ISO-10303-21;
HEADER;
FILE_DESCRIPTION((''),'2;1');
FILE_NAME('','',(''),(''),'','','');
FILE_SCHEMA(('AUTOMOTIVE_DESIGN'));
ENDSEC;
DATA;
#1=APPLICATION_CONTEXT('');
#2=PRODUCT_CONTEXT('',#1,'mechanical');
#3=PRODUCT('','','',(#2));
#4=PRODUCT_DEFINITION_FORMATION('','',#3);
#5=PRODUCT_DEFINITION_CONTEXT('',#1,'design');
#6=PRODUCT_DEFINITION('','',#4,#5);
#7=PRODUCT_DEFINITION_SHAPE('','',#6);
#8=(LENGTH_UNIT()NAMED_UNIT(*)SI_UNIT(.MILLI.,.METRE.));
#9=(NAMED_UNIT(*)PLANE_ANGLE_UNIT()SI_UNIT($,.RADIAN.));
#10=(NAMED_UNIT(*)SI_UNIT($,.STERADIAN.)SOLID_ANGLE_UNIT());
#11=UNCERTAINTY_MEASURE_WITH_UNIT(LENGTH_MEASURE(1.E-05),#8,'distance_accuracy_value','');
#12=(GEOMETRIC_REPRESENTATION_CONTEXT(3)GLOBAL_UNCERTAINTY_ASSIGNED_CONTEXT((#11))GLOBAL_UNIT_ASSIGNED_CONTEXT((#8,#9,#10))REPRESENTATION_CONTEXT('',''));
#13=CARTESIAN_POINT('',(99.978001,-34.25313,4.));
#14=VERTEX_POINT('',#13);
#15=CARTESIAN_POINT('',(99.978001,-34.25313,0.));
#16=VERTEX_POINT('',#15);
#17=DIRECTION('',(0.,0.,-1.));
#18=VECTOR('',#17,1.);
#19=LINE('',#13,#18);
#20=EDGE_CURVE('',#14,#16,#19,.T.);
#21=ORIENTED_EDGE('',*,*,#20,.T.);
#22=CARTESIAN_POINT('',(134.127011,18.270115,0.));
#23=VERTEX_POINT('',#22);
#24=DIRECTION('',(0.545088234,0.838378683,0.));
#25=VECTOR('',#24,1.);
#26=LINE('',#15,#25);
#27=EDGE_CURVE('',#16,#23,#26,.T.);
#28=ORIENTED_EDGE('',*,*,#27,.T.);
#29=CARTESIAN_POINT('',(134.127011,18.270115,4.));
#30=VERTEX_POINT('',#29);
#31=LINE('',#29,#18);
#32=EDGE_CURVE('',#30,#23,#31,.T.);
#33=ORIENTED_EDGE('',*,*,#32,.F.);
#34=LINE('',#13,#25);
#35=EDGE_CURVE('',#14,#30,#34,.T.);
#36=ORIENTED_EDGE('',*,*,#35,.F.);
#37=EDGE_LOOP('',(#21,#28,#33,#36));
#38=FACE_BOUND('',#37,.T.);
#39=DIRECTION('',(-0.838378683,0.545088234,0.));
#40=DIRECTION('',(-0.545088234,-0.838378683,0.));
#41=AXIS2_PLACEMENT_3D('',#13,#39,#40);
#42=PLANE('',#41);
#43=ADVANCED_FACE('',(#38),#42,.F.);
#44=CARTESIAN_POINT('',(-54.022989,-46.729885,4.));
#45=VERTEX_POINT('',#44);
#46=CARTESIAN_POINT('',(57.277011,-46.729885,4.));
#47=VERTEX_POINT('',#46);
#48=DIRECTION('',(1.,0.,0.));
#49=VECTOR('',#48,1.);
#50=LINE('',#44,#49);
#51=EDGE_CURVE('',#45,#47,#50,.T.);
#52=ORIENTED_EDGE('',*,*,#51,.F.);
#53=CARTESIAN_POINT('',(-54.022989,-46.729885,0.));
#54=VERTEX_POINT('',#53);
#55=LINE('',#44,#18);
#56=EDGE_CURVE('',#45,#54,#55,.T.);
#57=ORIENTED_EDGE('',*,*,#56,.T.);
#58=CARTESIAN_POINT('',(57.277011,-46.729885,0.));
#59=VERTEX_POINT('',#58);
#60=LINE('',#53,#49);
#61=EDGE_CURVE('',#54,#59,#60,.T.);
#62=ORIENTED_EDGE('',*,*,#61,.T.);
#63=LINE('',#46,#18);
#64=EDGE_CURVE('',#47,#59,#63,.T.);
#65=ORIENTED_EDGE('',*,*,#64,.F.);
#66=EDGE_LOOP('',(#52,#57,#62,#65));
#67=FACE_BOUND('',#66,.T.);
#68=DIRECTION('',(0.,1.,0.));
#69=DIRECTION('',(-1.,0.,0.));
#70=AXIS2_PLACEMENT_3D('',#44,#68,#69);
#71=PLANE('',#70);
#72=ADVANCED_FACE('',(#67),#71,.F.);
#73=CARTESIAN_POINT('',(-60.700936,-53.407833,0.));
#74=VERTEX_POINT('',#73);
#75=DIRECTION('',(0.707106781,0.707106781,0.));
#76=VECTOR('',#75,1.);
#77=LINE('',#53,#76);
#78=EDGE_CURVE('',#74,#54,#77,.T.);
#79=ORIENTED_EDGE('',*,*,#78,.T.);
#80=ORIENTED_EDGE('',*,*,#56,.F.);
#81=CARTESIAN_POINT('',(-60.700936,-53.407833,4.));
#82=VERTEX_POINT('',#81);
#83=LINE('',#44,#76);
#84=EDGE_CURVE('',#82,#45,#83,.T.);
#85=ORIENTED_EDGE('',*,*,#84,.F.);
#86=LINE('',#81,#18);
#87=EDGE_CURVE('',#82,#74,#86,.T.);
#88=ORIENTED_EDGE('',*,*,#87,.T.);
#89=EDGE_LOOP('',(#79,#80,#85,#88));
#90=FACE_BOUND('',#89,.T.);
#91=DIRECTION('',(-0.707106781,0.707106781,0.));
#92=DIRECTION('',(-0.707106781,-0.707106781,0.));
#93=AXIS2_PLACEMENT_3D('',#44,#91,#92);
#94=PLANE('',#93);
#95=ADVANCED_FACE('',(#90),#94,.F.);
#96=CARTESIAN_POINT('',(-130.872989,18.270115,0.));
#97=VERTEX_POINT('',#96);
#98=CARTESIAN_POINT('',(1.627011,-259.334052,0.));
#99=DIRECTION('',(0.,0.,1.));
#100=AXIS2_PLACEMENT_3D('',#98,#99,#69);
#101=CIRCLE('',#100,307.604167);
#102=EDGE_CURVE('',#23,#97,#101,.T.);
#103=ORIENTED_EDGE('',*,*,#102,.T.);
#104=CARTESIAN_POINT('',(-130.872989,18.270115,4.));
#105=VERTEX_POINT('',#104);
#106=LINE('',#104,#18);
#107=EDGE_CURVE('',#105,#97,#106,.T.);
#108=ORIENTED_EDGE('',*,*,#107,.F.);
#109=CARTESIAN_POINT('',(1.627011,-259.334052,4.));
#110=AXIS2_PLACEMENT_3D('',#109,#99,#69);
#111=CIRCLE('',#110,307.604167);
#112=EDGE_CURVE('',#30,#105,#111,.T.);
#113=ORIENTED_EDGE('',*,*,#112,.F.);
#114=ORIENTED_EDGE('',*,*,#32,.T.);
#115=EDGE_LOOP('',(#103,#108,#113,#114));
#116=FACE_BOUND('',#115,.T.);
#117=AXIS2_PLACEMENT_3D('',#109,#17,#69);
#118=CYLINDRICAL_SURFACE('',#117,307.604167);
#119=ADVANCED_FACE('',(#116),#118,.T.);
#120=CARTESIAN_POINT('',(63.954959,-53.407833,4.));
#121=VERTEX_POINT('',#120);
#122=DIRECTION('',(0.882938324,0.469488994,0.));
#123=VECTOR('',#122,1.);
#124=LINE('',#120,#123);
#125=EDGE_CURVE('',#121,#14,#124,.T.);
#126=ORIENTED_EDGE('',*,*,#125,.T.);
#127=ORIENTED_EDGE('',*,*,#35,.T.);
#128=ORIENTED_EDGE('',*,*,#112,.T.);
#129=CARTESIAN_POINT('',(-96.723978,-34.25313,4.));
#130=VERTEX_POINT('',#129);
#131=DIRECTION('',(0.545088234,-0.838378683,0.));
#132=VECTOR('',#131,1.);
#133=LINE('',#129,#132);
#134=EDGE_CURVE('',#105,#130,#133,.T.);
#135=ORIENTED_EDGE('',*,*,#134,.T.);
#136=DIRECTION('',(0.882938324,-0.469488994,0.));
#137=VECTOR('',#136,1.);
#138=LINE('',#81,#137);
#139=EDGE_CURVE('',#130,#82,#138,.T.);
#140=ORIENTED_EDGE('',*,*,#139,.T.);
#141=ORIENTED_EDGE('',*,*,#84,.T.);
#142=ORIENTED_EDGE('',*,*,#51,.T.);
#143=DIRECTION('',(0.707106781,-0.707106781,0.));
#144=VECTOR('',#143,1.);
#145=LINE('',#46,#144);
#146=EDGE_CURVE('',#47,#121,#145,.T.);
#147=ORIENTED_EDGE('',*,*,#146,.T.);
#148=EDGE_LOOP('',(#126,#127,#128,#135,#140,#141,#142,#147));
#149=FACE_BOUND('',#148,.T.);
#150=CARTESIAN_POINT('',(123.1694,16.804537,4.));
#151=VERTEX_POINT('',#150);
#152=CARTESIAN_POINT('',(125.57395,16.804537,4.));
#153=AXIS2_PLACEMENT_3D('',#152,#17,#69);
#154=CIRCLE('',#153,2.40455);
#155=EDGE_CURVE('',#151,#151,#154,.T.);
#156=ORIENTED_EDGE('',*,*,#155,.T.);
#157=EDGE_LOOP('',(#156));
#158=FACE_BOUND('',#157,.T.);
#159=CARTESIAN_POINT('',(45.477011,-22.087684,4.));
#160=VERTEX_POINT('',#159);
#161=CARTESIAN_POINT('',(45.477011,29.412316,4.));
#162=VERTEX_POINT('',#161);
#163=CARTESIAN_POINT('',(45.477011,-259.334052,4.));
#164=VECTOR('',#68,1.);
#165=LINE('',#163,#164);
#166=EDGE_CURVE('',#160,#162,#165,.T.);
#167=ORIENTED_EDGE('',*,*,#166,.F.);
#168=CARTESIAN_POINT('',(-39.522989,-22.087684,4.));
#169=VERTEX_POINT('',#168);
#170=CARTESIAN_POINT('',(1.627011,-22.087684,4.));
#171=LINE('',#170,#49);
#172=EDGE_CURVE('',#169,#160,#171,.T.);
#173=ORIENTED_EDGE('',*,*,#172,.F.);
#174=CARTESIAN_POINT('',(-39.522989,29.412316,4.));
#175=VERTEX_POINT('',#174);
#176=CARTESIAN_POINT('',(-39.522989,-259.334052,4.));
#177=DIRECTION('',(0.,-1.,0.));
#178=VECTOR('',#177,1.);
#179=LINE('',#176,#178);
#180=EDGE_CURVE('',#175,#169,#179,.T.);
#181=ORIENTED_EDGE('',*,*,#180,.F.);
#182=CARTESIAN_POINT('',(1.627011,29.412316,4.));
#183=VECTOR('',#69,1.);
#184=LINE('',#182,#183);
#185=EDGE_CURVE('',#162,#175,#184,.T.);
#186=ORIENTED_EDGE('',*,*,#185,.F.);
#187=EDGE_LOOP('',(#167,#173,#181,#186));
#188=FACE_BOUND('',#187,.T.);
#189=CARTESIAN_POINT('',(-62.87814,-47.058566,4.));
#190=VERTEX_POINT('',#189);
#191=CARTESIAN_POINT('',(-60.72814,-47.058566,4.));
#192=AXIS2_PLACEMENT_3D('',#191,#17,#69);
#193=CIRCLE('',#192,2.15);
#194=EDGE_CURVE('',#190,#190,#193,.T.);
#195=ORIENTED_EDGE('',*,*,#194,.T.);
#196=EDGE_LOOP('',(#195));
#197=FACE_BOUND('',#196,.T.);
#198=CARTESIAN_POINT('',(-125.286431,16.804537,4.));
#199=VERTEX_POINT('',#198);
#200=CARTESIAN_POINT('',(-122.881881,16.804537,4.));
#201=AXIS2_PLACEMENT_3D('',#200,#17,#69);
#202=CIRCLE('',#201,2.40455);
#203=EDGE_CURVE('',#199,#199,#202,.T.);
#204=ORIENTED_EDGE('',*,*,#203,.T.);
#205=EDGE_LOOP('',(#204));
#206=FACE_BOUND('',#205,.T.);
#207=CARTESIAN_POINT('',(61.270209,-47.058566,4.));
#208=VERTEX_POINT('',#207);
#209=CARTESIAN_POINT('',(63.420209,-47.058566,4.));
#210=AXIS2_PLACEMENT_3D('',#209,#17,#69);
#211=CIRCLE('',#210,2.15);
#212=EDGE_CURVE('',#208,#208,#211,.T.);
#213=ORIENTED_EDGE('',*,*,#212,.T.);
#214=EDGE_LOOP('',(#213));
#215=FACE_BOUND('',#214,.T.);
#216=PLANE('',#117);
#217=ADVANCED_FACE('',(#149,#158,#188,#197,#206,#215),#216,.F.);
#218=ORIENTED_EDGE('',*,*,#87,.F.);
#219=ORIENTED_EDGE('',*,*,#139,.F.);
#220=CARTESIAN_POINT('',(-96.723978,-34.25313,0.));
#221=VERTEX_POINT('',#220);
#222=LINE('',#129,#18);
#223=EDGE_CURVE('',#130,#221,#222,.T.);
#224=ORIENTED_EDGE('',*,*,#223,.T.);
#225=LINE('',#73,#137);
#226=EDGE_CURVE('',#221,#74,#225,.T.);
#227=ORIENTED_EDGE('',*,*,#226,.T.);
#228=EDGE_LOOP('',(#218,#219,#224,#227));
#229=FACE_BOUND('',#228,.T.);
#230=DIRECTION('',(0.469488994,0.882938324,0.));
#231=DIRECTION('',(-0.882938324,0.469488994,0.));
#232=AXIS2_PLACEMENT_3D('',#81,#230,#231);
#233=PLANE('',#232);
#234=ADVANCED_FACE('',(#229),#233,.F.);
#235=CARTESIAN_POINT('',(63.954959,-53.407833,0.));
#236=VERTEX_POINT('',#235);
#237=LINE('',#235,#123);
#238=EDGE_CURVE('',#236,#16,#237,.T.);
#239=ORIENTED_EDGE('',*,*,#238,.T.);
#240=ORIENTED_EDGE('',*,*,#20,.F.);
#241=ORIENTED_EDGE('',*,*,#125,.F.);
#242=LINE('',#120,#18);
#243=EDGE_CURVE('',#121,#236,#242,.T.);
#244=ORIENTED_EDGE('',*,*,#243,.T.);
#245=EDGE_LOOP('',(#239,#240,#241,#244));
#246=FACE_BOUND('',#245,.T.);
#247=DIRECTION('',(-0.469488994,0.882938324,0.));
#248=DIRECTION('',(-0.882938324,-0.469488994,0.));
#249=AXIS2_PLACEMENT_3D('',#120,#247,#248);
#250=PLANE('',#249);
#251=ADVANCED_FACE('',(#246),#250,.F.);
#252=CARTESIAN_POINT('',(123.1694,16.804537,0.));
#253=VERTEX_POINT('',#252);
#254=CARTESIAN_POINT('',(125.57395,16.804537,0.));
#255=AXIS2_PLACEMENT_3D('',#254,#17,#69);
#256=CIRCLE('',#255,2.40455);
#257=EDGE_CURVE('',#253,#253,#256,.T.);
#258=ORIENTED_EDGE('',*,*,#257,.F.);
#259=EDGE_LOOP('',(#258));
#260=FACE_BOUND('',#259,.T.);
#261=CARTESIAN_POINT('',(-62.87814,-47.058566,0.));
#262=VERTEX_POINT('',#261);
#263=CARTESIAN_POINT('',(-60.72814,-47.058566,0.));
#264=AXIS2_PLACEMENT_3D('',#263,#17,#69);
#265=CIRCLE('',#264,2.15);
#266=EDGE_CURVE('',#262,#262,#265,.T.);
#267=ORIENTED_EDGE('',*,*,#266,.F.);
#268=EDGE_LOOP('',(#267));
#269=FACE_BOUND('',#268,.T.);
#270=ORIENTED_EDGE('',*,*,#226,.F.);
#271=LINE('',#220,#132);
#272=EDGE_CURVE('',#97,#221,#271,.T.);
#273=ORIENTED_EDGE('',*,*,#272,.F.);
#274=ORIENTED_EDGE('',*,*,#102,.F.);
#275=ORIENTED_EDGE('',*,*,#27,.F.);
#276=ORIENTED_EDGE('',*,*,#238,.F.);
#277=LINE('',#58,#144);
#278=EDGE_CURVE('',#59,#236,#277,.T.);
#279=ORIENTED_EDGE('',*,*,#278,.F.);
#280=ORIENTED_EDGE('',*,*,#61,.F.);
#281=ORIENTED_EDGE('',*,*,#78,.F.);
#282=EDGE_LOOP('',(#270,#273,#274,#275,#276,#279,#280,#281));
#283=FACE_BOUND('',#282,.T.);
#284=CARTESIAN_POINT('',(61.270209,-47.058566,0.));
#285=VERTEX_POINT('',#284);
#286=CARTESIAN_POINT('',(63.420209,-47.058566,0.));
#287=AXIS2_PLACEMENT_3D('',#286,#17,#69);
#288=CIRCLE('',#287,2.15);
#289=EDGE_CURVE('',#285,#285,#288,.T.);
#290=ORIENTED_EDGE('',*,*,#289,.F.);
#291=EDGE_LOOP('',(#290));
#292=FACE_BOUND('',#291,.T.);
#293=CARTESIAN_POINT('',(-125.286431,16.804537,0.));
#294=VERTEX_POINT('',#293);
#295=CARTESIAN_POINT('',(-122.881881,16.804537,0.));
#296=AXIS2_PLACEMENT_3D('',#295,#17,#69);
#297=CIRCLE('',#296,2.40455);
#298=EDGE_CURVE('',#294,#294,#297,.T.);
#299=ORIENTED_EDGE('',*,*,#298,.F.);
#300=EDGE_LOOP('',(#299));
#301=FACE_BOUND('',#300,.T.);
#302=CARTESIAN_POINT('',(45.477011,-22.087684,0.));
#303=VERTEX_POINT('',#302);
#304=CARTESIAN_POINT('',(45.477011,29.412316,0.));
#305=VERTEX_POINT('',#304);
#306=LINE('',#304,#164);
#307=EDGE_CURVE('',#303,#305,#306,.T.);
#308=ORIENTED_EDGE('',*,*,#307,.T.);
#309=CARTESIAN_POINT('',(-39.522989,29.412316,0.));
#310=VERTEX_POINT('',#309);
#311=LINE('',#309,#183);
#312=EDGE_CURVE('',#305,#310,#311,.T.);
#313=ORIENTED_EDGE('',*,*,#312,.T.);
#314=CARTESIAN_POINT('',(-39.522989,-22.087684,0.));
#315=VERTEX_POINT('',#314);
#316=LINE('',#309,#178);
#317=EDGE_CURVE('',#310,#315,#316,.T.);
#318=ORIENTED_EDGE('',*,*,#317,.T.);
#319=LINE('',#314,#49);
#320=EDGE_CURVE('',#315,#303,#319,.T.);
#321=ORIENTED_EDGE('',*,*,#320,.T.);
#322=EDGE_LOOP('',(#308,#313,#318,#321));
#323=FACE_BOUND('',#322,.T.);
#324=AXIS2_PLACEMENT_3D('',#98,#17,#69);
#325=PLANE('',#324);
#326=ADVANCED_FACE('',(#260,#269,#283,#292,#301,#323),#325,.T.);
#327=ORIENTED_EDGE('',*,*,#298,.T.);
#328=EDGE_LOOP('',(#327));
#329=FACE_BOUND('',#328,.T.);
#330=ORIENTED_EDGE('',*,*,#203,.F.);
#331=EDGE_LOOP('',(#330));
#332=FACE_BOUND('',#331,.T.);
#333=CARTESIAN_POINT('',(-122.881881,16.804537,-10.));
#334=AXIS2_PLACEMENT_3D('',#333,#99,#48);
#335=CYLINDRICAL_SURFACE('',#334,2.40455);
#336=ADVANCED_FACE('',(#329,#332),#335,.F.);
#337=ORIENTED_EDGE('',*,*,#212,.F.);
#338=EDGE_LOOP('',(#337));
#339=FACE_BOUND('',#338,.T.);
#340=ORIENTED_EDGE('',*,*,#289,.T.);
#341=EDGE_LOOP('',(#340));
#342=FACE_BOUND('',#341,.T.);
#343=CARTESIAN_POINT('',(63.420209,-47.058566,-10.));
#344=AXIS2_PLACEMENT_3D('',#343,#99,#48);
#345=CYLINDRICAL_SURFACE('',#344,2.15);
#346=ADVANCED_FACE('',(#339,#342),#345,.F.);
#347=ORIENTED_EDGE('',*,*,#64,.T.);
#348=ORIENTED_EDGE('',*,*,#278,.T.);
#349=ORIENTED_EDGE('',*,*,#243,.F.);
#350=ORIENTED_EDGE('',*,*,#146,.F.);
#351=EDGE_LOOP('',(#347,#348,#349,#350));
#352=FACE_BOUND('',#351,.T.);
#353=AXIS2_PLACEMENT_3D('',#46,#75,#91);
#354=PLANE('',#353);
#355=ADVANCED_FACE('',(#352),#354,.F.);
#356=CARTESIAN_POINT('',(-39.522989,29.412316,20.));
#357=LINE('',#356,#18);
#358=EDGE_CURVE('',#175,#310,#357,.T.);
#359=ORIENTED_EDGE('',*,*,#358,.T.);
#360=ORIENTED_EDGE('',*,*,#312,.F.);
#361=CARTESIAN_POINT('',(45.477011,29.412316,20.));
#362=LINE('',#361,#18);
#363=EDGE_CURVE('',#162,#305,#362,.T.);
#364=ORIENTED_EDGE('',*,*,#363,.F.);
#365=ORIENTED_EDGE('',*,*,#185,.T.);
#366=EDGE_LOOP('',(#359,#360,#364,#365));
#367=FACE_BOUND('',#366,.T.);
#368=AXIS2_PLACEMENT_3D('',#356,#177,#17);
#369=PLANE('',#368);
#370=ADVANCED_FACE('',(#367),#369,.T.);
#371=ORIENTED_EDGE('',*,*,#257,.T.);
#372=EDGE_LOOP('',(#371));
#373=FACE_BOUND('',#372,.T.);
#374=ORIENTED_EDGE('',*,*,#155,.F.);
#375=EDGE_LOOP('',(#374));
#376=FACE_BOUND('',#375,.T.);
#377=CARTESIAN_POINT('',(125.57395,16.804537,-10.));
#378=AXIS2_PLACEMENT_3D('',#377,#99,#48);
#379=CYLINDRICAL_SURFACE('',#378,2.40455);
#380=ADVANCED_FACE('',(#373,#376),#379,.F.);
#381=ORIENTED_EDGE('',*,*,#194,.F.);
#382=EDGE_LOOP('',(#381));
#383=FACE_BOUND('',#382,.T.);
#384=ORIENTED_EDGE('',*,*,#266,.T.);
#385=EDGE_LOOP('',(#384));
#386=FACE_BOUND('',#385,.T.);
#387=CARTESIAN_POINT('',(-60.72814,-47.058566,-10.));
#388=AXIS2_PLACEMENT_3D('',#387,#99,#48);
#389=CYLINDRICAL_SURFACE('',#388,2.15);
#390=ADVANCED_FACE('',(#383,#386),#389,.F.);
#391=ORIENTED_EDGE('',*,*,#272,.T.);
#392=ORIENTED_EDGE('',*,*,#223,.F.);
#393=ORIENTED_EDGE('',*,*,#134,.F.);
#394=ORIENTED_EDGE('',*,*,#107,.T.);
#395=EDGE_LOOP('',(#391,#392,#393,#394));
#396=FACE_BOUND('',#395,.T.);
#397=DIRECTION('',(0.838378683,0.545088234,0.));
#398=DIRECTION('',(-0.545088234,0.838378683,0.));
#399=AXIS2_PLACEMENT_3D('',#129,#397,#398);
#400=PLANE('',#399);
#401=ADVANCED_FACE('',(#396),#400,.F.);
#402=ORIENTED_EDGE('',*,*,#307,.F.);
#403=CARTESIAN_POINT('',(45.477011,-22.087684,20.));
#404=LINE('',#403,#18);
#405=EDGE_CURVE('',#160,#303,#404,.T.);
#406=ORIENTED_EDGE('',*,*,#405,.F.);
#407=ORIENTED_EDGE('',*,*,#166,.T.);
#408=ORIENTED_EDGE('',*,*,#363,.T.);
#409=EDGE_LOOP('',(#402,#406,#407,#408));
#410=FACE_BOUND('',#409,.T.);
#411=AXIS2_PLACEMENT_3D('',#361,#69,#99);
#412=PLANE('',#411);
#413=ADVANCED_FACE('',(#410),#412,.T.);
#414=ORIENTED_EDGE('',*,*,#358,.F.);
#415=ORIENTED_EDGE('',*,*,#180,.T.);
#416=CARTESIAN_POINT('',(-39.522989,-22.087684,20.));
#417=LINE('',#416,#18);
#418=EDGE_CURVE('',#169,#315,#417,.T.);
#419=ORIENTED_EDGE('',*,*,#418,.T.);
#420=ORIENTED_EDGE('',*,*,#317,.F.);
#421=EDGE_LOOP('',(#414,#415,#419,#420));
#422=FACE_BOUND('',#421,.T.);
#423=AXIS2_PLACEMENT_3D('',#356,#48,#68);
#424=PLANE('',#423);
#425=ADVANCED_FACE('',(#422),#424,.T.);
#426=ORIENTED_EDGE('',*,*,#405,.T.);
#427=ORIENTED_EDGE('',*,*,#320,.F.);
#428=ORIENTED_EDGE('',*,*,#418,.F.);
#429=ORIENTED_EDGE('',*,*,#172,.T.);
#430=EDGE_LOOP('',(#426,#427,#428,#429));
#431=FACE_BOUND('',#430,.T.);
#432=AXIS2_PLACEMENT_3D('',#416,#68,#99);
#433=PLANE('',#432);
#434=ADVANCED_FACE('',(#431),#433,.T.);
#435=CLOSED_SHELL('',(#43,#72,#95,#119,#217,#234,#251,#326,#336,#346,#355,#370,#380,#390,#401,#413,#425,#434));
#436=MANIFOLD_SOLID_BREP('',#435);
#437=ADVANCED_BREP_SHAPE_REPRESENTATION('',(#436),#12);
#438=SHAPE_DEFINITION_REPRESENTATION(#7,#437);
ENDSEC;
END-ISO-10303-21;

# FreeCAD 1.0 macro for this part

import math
import FreeCAD as App
import Part
import Sketcher


def add_polygon(sketch, points):
    """Adds a closed chain of lines whose ends are joined by coincident constraints."""
    first, n = sketch.GeometryCount, len(points)
    for a, b in zip(points, points[1:] + points[:1]):
        sketch.addGeometry(Part.LineSegment(App.Vector(*a, 0), App.Vector(*b, 0)), False)
    for i in range(n):
        sketch.addConstraint(Sketcher.Constraint("Coincident", first + i, 2, first + (i + 1) % n, 1))

doc = App.newDocument("Part")
params = doc.addObject("Spreadsheet::Sheet", "Params")
for row, (alias, value) in enumerate([
    ("sketch1_width", "111.3 mm"),
    ("pad1_length", "4 mm"),
    ("sketch2_width", "85 mm"),
    ("sketch2_height", "51.5 mm"),
    ("pocket1_length", "20 mm"),
    ("sketch3_diameter", "4.3 mm"),
    ("pocket2_length", "20 mm"),
], start=1):
    params.set(f"A{row}", alias)
    params.set(f"B{row}", "=" + value)
    params.setAlias(f"B{row}", alias)

body = doc.addObject("PartDesign::Body", "Body")

# Sketch on XY plane
sketch1 = body.newObject("Sketcher::SketchObject", "Sketch")
sketch1.AttachmentSupport = (doc.getObject("XY_Plane"), [""])
sketch1.MapMode = "FlatFace"
sketch1.addGeometry([
    Part.LineSegment(App.Vector(-61, -53, 0), App.Vector(-54, -47, 0)),  # 0
    Part.LineSegment(App.Vector(-54, -47, 0), App.Vector(57, -47, 0)),  # 1
    Part.LineSegment(App.Vector(57, -47, 0), App.Vector(64, -53, 0)),  # 2
    Part.LineSegment(App.Vector(64, -53, 0), App.Vector(100, -34, 0)),  # 3
    Part.LineSegment(App.Vector(100, -34, 0), App.Vector(134, 18, 0)),  # 4
    Part.ArcOfCircle(Part.Circle(App.Vector(2, -259, 0), App.Vector(0, 0, 1), 308), math.radians(64), math.radians(116)),  # 5
    Part.LineSegment(App.Vector(-131, 18, 0), App.Vector(-97, -34, 0)),  # 6
    Part.LineSegment(App.Vector(-97, -34, 0), App.Vector(-61, -53, 0)),  # 7
], False)
sketch1.addConstraint([
    Sketcher.Constraint("Coincident", 0, 2, 1, 1),
    Sketcher.Constraint("Coincident", 1, 2, 2, 1),
    Sketcher.Constraint("Coincident", 2, 2, 3, 1),
    Sketcher.Constraint("Coincident", 3, 2, 4, 1),
    Sketcher.Constraint("Coincident", 4, 2, 5, 1),
    Sketcher.Constraint("Coincident", 5, 2, 6, 1),
    Sketcher.Constraint("Coincident", 6, 2, 7, 1),
    Sketcher.Constraint("Coincident", 7, 2, 0, 1),
    Sketcher.Constraint("Horizontal", 1),
    Sketcher.Constraint("Perpendicular", 0, 2),
    Sketcher.Constraint("Horizontal", 4, 2, 5, 2),
    Sketcher.Constraint("Horizontal", 3, 2, 6, 2),
    Sketcher.Constraint("Horizontal", 2, 2, 7, 2),
    Sketcher.Constraint("Equal", 0, 2),
    Sketcher.Constraint("Equal", 4, 6),
    Sketcher.Constraint("Equal", 3, 7),
    Sketcher.Constraint("DistanceX", 1, 1, 1, 2, 111.3),
    Sketcher.Constraint("DistanceY", 1, 2, 4, 2, 65.0),
    Sketcher.Constraint("DistanceX", 5, 2, 4, 2, 265.0),
    Sketcher.Constraint("DistanceX", -1, 1, 3, 2, 99.978001),
    Sketcher.Constraint("Radius", 5, 307.604167),
    Sketcher.Constraint("DistanceX", -1, 1, 5, 3, 1.627011),
    Sketcher.Constraint("DistanceY", 5, 3, -1, 1, 259.334052),
    Sketcher.Constraint("DistanceX", -1, 1, 2, 2, 63.954959),
    Sketcher.Constraint("DistanceY", 3, 2, -1, 1, 34.25313),
])
sketch1.setExpression("Constraints[16]", "Params.sketch1_width")
pad1 = body.newObject("PartDesign::Pad", "Pad")
pad1.Profile = sketch1
pad1.setExpression("Length", "Params.pad1_length")

# Sketch on XY plane
sketch2 = body.newObject("Sketcher::SketchObject", "Sketch001")
sketch2.AttachmentSupport = (doc.getObject("XY_Plane"), [""])
sketch2.MapMode = "FlatFace"
add_polygon(sketch2, [(-40, 29), (-40, -22), (45, -22), (45, 29)])  # lines 0-3
sketch2.addConstraint([
    Sketcher.Constraint("Vertical", 0),
    Sketcher.Constraint("Horizontal", 1),
    Sketcher.Constraint("Vertical", 2),
    Sketcher.Constraint("Horizontal", 3),
    Sketcher.Constraint("DistanceX", 1, 1, 1, 2, 85.0),
    Sketcher.Constraint("DistanceY", 0, 2, 0, 1, 51.5),
    Sketcher.Constraint("DistanceX", 0, 2, -1, 1, 39.522989),
    Sketcher.Constraint("DistanceY", 0, 2, -1, 1, 22.087684),
])
sketch2.setExpression("Constraints[8]", "Params.sketch2_width")
sketch2.setExpression("Constraints[9]", "Params.sketch2_height")
pocket1 = body.newObject("PartDesign::Pocket", "Pocket")
pocket1.Profile = sketch2
pocket1.setExpression("Length", "Params.pocket1_length")
pocket1.Reversed = True

# Sketch on XY plane
sketch3 = body.newObject("Sketcher::SketchObject", "Sketch002")
sketch3.AttachmentSupport = (doc.getObject("XY_Plane"), [""])
sketch3.MapMode = "FlatFace"
sketch3.AttachmentOffset = App.Placement(App.Vector(0, 0, 10), App.Rotation())
sketch3.addGeometry([
    Part.Circle(App.Vector(-122.9, 16.8, 0), App.Vector(0, 0, 1), 2.4),
    Part.Circle(App.Vector(-60.7, -47.1, 0), App.Vector(0, 0, 1), 2.1),
    Part.Circle(App.Vector(63.4, -47.1, 0), App.Vector(0, 0, 1), 2.1),
    Part.Circle(App.Vector(125.6, 16.8, 0), App.Vector(0, 0, 1), 2.4),
], False)
sketch3.addConstraint([
    Sketcher.Constraint("Equal", 1, 2),
    Sketcher.Constraint("Equal", 0, 3),
    Sketcher.Constraint("Horizontal", 1, 3, 2, 3),
    Sketcher.Constraint("Horizontal", 0, 3, 3, 3),
    Sketcher.Constraint("Diameter", 1, 4.3),
    Sketcher.Constraint("Diameter", 0, 4.8091),
    Sketcher.Constraint("DistanceX", 0, 3, -1, 1, 122.881881),
    Sketcher.Constraint("DistanceX", 1, 3, -1, 1, 60.72814),
    Sketcher.Constraint("DistanceX", -1, 1, 2, 3, 63.420209),
    Sketcher.Constraint("DistanceX", -1, 1, 3, 3, 125.57395),
    Sketcher.Constraint("DistanceY", -1, 1, 0, 3, 16.804537),
    Sketcher.Constraint("DistanceY", 1, 3, -1, 1, 47.058566),
])
sketch3.setExpression("Constraints[4]", "Params.sketch3_diameter")
pocket2 = body.newObject("PartDesign::Pocket", "Pocket001")
pocket2.Profile = sketch3
pocket2.setExpression("Length", "Params.pocket2_length")

doc.recompute()
